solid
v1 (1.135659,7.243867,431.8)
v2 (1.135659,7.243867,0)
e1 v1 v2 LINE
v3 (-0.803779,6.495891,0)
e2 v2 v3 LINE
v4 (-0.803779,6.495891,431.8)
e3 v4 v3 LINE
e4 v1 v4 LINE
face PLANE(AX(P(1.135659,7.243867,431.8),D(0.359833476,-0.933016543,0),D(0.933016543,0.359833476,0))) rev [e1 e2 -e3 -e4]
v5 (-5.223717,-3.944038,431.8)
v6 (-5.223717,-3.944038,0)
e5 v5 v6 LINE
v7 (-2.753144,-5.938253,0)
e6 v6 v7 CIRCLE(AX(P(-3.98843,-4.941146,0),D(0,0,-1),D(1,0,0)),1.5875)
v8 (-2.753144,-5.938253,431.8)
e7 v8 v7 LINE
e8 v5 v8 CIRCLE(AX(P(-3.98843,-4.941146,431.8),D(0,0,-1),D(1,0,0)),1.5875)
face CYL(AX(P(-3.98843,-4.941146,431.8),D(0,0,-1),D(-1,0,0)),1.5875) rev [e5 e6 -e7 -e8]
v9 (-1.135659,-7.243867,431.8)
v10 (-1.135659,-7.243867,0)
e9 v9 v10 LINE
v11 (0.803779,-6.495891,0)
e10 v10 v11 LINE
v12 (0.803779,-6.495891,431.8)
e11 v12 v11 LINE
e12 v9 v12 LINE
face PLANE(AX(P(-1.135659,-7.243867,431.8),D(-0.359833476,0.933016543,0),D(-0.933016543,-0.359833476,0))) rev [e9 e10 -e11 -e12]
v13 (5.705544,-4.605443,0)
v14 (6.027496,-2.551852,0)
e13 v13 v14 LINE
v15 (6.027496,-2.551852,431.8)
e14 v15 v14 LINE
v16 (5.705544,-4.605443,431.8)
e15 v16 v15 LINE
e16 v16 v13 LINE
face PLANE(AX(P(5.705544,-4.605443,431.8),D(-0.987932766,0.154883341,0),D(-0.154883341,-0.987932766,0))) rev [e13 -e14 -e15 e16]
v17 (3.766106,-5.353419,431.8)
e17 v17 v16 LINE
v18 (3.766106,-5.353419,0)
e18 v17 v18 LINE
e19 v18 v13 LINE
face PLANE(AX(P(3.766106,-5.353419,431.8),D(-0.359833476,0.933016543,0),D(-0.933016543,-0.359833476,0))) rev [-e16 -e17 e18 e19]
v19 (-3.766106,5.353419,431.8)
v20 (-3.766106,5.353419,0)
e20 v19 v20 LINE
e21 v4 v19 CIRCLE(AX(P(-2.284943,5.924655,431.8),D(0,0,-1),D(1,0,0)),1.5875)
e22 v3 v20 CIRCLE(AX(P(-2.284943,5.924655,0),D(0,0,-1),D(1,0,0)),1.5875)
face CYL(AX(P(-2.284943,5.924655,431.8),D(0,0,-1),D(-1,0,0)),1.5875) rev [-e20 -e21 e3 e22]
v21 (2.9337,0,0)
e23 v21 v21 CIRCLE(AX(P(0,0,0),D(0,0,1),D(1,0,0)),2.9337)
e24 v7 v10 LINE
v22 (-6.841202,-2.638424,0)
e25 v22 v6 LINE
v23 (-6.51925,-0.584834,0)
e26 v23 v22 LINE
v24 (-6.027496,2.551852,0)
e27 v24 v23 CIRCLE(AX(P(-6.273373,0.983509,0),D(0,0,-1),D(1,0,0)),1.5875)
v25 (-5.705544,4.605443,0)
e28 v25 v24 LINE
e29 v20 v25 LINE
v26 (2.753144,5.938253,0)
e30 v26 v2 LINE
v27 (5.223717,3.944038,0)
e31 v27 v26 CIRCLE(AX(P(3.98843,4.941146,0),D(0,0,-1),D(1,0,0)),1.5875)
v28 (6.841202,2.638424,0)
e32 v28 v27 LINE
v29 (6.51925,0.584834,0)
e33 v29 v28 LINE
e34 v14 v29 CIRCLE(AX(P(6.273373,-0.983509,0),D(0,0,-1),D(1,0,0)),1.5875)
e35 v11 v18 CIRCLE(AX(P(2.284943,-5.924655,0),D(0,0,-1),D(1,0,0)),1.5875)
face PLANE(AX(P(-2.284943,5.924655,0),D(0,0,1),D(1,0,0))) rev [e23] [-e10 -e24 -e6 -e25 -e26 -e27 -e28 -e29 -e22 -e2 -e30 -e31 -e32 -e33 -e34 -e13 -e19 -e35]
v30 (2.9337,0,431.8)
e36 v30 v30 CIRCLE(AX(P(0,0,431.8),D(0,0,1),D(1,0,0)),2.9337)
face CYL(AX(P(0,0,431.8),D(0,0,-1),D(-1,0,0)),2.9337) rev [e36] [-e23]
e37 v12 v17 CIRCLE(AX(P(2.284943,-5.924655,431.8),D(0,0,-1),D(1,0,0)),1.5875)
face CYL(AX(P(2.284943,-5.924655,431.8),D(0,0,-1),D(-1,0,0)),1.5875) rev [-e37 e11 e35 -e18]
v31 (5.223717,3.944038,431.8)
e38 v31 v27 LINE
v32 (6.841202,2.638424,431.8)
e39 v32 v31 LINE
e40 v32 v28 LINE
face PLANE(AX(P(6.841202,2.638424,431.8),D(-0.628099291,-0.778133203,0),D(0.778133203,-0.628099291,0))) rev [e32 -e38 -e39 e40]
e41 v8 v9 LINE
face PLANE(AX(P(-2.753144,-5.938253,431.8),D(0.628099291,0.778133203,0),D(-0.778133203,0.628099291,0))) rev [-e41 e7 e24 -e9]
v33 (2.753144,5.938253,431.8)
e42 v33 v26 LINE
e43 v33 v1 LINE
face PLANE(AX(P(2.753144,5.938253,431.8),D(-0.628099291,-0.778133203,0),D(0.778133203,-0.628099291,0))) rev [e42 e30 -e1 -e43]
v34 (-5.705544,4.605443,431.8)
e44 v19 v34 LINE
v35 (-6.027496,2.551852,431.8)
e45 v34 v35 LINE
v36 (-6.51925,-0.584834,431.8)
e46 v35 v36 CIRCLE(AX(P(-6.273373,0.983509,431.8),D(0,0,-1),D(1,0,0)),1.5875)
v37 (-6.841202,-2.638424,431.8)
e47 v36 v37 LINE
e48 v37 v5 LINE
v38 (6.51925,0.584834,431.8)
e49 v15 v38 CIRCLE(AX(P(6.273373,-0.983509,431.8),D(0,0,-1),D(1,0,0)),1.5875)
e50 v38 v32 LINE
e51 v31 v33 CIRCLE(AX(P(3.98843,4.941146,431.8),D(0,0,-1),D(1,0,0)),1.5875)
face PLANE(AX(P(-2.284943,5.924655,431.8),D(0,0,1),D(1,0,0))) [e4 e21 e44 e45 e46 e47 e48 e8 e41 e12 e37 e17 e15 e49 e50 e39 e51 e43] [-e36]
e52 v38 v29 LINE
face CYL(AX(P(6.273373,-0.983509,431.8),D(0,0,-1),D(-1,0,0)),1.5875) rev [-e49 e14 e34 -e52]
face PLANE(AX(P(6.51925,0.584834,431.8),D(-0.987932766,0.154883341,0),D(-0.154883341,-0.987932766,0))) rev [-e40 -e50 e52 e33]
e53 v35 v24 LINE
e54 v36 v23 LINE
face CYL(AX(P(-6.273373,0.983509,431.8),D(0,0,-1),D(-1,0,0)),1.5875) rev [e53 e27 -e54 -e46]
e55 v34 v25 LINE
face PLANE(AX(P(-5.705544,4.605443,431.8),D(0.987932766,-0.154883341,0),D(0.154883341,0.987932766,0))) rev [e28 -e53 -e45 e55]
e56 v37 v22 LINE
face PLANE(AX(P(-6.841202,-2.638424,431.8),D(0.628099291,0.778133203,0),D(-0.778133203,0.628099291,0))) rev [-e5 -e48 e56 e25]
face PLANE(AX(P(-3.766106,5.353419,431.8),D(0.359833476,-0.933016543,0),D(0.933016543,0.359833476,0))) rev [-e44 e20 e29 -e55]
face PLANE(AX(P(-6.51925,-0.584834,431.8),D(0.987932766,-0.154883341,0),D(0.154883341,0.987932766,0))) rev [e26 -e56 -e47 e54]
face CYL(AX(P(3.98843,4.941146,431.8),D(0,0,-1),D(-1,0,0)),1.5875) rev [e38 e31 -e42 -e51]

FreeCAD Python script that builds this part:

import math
import FreeCAD as App
import Part
import Sketcher

V = App.Vector
Q = App.Units.Quantity

doc = App.newDocument("Part")
body = doc.addObject("PartDesign::Body", "Body")

# Sketch on XY plane
sketch1 = doc.addObject("Sketcher::SketchObject", "Sketch")
body.addObject(sketch1)
sketch1.AttachmentSupport = (doc.XY_Plane, [""])
sketch1.MapMode = "FlatFace"
sketch1.addGeometry([
    Part.LineSegment(V(-3.8, 5.4, 0), V(-5.7, 4.6, 0)),  # 0
    Part.LineSegment(V(-5.7, 4.6, 0), V(-6, 2.6, 0)),  # 1
    Part.ArcOfCircle(Part.Circle(V(-6.3, 1, 0), V(0, 0, 1), 1.6), math.radians(-99), math.radians(81)),  # 2
    Part.LineSegment(V(-6.5, -0.6, 0), V(-6.8, -2.6, 0)),  # 3
    Part.LineSegment(V(-6.8, -2.6, 0), V(-5.2, -3.9, 0)),  # 4
    Part.ArcOfCircle(Part.Circle(V(-4, -4.9, 0), V(0, 0, 1), 1.6), math.radians(-39), math.radians(141)),  # 5
    Part.LineSegment(V(-2.8, -5.9, 0), V(-1.1, -7.2, 0)),  # 6
    Part.LineSegment(V(-1.1, -7.2, 0), V(0.8, -6.5, 0)),  # 7
    Part.ArcOfCircle(Part.Circle(V(2.3, -5.9, 0), V(0, 0, 1), 1.6), math.radians(21), math.radians(201)),  # 8
    Part.LineSegment(V(3.8, -5.4, 0), V(5.7, -4.6, 0)),  # 9
    Part.LineSegment(V(5.7, -4.6, 0), V(6, -2.6, 0)),  # 10
    Part.ArcOfCircle(Part.Circle(V(6.3, -1, 0), V(0, 0, 1), 1.6), math.radians(81), math.radians(261)),  # 11
    Part.LineSegment(V(6.5, 0.6, 0), V(6.8, 2.6, 0)),  # 12
    Part.LineSegment(V(6.8, 2.6, 0), V(5.2, 3.9, 0)),  # 13
    Part.ArcOfCircle(Part.Circle(V(4, 4.9, 0), V(0, 0, 1), 1.6), math.radians(141), math.radians(321)),  # 14
    Part.LineSegment(V(2.8, 5.9, 0), V(1.1, 7.2, 0)),  # 15
    Part.LineSegment(V(1.1, 7.2, 0), V(-0.8, 6.5, 0)),  # 16
    Part.ArcOfCircle(Part.Circle(V(-2.3, 5.9, 0), V(0, 0, 1), 1.6), math.radians(-159), math.radians(21)),  # 17
    Part.Circle(V(0, 0, 0), V(0, 0, 1), 2.9),  # 18
], False)
sketch1.addConstraint([
    Sketcher.Constraint("Coincident", 0, 2, 1, 1),
    Sketcher.Constraint("Coincident", 1, 2, 2, 2),
    Sketcher.Constraint("Coincident", 2, 1, 3, 1),
    Sketcher.Constraint("Coincident", 3, 2, 4, 1),
    Sketcher.Constraint("Coincident", 4, 2, 5, 2),
    Sketcher.Constraint("Coincident", 5, 1, 6, 1),
    Sketcher.Constraint("Coincident", 6, 2, 7, 1),
    Sketcher.Constraint("Coincident", 7, 2, 8, 2),
    Sketcher.Constraint("Coincident", 8, 1, 9, 1),
    Sketcher.Constraint("Coincident", 9, 2, 10, 1),
    Sketcher.Constraint("Coincident", 10, 2, 11, 2),
    Sketcher.Constraint("Coincident", 11, 1, 12, 1),
    Sketcher.Constraint("Coincident", 12, 2, 13, 1),
    Sketcher.Constraint("Coincident", 13, 2, 14, 2),
    Sketcher.Constraint("Coincident", 14, 1, 15, 1),
    Sketcher.Constraint("Coincident", 15, 2, 16, 1),
    Sketcher.Constraint("Coincident", 16, 2, 17, 2),
    Sketcher.Constraint("Coincident", 17, 1, 0, 1),
    Sketcher.Constraint("Coincident", 18, 3, -1, 1),
    Sketcher.Constraint("Equal", 2, 5),
    Sketcher.Constraint("Equal", 5, 8),
    Sketcher.Constraint("Equal", 8, 11),
    Sketcher.Constraint("Equal", 11, 14),
    Sketcher.Constraint("Equal", 14, 17),
    Sketcher.Constraint("Symmetric", 2, 3, 11, 3, -1, 1),
    Sketcher.Constraint("Symmetric", 5, 3, 14, 3, -1, 1),
    Sketcher.Constraint("Symmetric", 8, 3, 17, 3, -1, 1),
    Sketcher.Constraint("Symmetric", 0, 2, 9, 2, -1, 1),
    Sketcher.Constraint("Symmetric", 3, 2, 12, 2, -1, 1),
    Sketcher.Constraint("Symmetric", 6, 2, 15, 2, -1, 1),
    Sketcher.Constraint("Parallel", 1, 3),
    Sketcher.Constraint("Parallel", 4, 6),
    Sketcher.Constraint("Parallel", 0, 7),
    Sketcher.Constraint("Parallel", 7, 9),
    Sketcher.Constraint("Parallel", 3, 10),
    Sketcher.Constraint("Parallel", 10, 12),
    Sketcher.Constraint("Parallel", 6, 13),
    Sketcher.Constraint("Parallel", 13, 15),
    Sketcher.Constraint("Parallel", 9, 16),
    Sketcher.Constraint("Equal", 0, 1),
    Sketcher.Constraint("Equal", 1, 3),
    Sketcher.Constraint("Equal", 3, 4),
    Sketcher.Constraint("Equal", 4, 6),
    Sketcher.Constraint("Equal", 6, 7),
    Sketcher.Constraint("Diameter", 18, Q("0.231 in")),
    Sketcher.Constraint("Radius", 2, Q("0.0625 in")),
    Sketcher.Constraint("DistanceY", 5, 3, 1, 2, Q("0.2949999 in")),
    Sketcher.Constraint("DistanceY", 8, 3, 14, 3, Q("10.865801 mm")),
    Sketcher.Constraint("DistanceX", 0, 2, 17, 3, Q("3.420601 mm")),
    Sketcher.Constraint("DistanceY", 5, 1, 8, 3, Q("0.013598 mm")),
    Sketcher.Constraint("DistanceX", 6, 2, 8, 3, Q("3.420601 mm")),
    Sketcher.Constraint("DistanceY", -1, 1, 2, 3, Q("0.983509 mm")),
    Sketcher.Constraint("DistanceX", 5, 3, -1, 1, Q("3.98843 mm")),
    Sketcher.Constraint("DistanceX", 2, 1, -1, 1, Q("6.51925 mm")),
    Sketcher.Constraint("DistanceY", 4, 2, -1, 1, Q("3.944038 mm")),
    Sketcher.Constraint("DistanceX", -1, 1, 7, 2, Q("0.803779 mm")),
])
pad1 = doc.addObject("PartDesign::Pad", "Pad")
body.addObject(pad1)
pad1.Profile = sketch1
pad1.Length = Q("17 in")

doc.recompute()
